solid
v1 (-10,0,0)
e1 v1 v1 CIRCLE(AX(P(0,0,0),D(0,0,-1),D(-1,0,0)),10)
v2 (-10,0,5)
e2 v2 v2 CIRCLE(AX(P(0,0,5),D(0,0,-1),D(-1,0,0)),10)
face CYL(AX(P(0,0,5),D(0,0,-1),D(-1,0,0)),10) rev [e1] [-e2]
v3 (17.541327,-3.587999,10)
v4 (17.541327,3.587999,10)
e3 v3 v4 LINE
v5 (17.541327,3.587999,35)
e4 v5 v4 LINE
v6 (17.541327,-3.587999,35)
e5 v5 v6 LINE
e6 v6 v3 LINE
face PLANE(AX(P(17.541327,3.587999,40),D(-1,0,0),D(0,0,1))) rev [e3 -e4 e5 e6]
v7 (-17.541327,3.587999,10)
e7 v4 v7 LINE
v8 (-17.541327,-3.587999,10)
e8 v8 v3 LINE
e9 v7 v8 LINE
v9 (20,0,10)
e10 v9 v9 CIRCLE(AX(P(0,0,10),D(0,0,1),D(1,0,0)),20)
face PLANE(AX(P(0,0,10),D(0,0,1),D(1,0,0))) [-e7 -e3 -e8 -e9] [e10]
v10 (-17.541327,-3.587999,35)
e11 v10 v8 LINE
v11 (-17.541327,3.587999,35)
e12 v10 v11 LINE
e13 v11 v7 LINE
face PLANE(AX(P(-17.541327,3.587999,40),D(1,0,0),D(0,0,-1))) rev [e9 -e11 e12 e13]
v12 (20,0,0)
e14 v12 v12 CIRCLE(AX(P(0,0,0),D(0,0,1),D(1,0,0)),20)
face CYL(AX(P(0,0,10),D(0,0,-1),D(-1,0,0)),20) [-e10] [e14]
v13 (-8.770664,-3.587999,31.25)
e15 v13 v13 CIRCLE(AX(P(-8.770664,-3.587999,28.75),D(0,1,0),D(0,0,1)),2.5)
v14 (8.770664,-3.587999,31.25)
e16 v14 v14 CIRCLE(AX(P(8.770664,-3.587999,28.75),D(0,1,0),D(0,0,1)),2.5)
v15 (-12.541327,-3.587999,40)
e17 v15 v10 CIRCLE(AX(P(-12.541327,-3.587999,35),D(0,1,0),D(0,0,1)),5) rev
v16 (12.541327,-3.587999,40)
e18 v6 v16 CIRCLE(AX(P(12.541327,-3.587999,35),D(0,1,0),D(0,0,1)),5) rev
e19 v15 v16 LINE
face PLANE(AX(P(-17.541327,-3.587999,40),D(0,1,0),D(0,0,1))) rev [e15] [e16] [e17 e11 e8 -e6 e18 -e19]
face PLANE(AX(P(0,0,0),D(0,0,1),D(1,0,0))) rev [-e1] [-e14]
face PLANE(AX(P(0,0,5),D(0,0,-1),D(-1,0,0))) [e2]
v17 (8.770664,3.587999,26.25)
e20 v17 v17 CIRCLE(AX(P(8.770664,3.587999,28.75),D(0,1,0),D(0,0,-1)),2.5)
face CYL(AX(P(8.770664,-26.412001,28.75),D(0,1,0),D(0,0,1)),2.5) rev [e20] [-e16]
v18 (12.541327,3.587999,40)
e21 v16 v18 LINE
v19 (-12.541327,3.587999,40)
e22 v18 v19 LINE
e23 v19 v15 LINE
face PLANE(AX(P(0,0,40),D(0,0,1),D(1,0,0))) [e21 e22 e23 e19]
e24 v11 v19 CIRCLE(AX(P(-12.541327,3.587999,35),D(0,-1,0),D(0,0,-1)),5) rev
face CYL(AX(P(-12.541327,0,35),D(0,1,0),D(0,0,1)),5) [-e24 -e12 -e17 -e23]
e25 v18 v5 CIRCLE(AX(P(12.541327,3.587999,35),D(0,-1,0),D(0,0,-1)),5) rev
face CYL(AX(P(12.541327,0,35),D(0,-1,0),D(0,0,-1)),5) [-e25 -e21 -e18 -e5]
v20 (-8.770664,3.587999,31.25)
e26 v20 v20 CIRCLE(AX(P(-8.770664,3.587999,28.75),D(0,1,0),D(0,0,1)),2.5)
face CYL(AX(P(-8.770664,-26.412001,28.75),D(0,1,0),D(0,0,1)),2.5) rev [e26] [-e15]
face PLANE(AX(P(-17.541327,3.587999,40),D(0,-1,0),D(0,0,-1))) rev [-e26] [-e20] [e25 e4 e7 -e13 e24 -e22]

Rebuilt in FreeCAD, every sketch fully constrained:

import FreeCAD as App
import Part
import Sketcher
from FreeCAD import Vector
Q = App.Units.Quantity


def edges_at(feature, points):
    """Names of the edges that pass closest to the given points."""
    edges = feature.Shape.Edges
    near = lambda p: min(range(len(edges)), key=lambda i: edges[i].distToShape(Part.Vertex(*p))[0])
    return sorted({f"Edge{near(p) + 1}" for p in points})

doc = App.newDocument("Part")
body = doc.addObject("PartDesign::Body", "Body")

# Sketch on XY plane
sketch1 = body.newObject("Sketcher::SketchObject", "Sketch")
sketch1.AttachmentSupport = (doc.getObject("XY_Plane"), [""])
sketch1.MapMode = "FlatFace"
sketch1.addGeometry(Part.Circle(Vector(0, 0, 0), Vector(0, 0, 1), 20), False)
sketch1.addConstraint([
    Sketcher.Constraint("Coincident", 0, 3, -1, 1),
    Sketcher.Constraint("Diameter", 0, Q("40 mm")),
])
pad1 = body.newObject("PartDesign::Pad", "Pad")
pad1.Profile = sketch1
pad1.Length = 10

# Sketch on XY plane
sketch2 = body.newObject("Sketcher::SketchObject", "Sketch001")
sketch2.AttachmentSupport = (doc.getObject("XY_Plane"), [""])
sketch2.MapMode = "FlatFace"
sketch2.AttachmentOffset = App.Placement(Vector(0, 0, 10), App.Rotation())
sketch2.addGeometry([
    Part.LineSegment(Vector(-18, 4, 0), Vector(-18, -4, 0)),
    Part.LineSegment(Vector(-18, -4, 0), Vector(18, -4, 0)),
    Part.LineSegment(Vector(18, -4, 0), Vector(18, 4, 0)),
    Part.LineSegment(Vector(18, 4, 0), Vector(-18, 4, 0)),
], False)
sketch2.addConstraint([
    Sketcher.Constraint("Coincident", 0, 2, 1, 1),
    Sketcher.Constraint("Coincident", 1, 2, 2, 1),
    Sketcher.Constraint("Coincident", 2, 2, 3, 1),
    Sketcher.Constraint("Coincident", 3, 2, 0, 1),
    Sketcher.Constraint("Vertical", 0),
    Sketcher.Constraint("Horizontal", 1),
    Sketcher.Constraint("Vertical", 2),
    Sketcher.Constraint("Horizontal", 3),
    Sketcher.Constraint("Symmetric", 0, 2, 2, 2, -1, 1),
    Sketcher.Constraint("DistanceY", 0, 2, -1, 1, Q("3.587999 mm")),
    Sketcher.Constraint("DistanceX", 1, 1, 1, 2, Q("35.082655 mm")),
])
pad2 = body.newObject("PartDesign::Pad", "Pad001")
pad2.Profile = sketch2
pad2.Length = 30
doc.recompute()

fillet = body.newObject("PartDesign::Fillet", "Fillet")
fillet.Base = (pad2, edges_at(pad2, [(17.541, 0, 40), (-17.541, 0, 40)]))
fillet.Radius = 5

# Sketch on XZ plane
sketch3 = body.newObject("Sketcher::SketchObject", "Sketch002")
sketch3.AttachmentSupport = (doc.getObject("XZ_Plane"), [""])
sketch3.MapMode = "FlatFace"
sketch3.AttachmentOffset = App.Placement(Vector(0, 0, -3.587999), App.Rotation())
sketch3.addGeometry([
    Part.Circle(Vector(-8.8, 28.8, 0), Vector(0, 0, 1), 2.5),
    Part.Circle(Vector(8.8, 28.8, 0), Vector(0, 0, 1), 2.5),
], False)
sketch3.addConstraint([
    Sketcher.Constraint("Equal", 0, 1),
    Sketcher.Constraint("Symmetric", 0, 3, 1, 3, -2),
    Sketcher.Constraint("Diameter", 0, Q("5 mm")),
    Sketcher.Constraint("DistanceY", -1, 1, 0, 3, Q("28.75 mm")),
    Sketcher.Constraint("DistanceX", 0, 3, -1, 1, Q("8.770664 mm")),
])
pocket1 = body.newObject("PartDesign::Pocket", "Pocket")
pocket1.Profile = sketch3
pocket1.Length = 30
pocket1.Reversed = True

# Sketch on XY plane
sketch4 = body.newObject("Sketcher::SketchObject", "Sketch003")
sketch4.AttachmentSupport = (doc.getObject("XY_Plane"), [""])
sketch4.MapMode = "FlatFace"
sketch4.addGeometry(Part.Circle(Vector(0, 0, 0), Vector(0, 0, 1), 10), False)
sketch4.addConstraint([
    Sketcher.Constraint("Coincident", 0, 3, -1, 1),
    Sketcher.Constraint("Diameter", 0, Q("20 mm")),
])
pocket2 = body.newObject("PartDesign::Pocket", "Pocket001")
pocket2.Profile = sketch4
pocket2.Length = 5
pocket2.Reversed = True

doc.recompute()
